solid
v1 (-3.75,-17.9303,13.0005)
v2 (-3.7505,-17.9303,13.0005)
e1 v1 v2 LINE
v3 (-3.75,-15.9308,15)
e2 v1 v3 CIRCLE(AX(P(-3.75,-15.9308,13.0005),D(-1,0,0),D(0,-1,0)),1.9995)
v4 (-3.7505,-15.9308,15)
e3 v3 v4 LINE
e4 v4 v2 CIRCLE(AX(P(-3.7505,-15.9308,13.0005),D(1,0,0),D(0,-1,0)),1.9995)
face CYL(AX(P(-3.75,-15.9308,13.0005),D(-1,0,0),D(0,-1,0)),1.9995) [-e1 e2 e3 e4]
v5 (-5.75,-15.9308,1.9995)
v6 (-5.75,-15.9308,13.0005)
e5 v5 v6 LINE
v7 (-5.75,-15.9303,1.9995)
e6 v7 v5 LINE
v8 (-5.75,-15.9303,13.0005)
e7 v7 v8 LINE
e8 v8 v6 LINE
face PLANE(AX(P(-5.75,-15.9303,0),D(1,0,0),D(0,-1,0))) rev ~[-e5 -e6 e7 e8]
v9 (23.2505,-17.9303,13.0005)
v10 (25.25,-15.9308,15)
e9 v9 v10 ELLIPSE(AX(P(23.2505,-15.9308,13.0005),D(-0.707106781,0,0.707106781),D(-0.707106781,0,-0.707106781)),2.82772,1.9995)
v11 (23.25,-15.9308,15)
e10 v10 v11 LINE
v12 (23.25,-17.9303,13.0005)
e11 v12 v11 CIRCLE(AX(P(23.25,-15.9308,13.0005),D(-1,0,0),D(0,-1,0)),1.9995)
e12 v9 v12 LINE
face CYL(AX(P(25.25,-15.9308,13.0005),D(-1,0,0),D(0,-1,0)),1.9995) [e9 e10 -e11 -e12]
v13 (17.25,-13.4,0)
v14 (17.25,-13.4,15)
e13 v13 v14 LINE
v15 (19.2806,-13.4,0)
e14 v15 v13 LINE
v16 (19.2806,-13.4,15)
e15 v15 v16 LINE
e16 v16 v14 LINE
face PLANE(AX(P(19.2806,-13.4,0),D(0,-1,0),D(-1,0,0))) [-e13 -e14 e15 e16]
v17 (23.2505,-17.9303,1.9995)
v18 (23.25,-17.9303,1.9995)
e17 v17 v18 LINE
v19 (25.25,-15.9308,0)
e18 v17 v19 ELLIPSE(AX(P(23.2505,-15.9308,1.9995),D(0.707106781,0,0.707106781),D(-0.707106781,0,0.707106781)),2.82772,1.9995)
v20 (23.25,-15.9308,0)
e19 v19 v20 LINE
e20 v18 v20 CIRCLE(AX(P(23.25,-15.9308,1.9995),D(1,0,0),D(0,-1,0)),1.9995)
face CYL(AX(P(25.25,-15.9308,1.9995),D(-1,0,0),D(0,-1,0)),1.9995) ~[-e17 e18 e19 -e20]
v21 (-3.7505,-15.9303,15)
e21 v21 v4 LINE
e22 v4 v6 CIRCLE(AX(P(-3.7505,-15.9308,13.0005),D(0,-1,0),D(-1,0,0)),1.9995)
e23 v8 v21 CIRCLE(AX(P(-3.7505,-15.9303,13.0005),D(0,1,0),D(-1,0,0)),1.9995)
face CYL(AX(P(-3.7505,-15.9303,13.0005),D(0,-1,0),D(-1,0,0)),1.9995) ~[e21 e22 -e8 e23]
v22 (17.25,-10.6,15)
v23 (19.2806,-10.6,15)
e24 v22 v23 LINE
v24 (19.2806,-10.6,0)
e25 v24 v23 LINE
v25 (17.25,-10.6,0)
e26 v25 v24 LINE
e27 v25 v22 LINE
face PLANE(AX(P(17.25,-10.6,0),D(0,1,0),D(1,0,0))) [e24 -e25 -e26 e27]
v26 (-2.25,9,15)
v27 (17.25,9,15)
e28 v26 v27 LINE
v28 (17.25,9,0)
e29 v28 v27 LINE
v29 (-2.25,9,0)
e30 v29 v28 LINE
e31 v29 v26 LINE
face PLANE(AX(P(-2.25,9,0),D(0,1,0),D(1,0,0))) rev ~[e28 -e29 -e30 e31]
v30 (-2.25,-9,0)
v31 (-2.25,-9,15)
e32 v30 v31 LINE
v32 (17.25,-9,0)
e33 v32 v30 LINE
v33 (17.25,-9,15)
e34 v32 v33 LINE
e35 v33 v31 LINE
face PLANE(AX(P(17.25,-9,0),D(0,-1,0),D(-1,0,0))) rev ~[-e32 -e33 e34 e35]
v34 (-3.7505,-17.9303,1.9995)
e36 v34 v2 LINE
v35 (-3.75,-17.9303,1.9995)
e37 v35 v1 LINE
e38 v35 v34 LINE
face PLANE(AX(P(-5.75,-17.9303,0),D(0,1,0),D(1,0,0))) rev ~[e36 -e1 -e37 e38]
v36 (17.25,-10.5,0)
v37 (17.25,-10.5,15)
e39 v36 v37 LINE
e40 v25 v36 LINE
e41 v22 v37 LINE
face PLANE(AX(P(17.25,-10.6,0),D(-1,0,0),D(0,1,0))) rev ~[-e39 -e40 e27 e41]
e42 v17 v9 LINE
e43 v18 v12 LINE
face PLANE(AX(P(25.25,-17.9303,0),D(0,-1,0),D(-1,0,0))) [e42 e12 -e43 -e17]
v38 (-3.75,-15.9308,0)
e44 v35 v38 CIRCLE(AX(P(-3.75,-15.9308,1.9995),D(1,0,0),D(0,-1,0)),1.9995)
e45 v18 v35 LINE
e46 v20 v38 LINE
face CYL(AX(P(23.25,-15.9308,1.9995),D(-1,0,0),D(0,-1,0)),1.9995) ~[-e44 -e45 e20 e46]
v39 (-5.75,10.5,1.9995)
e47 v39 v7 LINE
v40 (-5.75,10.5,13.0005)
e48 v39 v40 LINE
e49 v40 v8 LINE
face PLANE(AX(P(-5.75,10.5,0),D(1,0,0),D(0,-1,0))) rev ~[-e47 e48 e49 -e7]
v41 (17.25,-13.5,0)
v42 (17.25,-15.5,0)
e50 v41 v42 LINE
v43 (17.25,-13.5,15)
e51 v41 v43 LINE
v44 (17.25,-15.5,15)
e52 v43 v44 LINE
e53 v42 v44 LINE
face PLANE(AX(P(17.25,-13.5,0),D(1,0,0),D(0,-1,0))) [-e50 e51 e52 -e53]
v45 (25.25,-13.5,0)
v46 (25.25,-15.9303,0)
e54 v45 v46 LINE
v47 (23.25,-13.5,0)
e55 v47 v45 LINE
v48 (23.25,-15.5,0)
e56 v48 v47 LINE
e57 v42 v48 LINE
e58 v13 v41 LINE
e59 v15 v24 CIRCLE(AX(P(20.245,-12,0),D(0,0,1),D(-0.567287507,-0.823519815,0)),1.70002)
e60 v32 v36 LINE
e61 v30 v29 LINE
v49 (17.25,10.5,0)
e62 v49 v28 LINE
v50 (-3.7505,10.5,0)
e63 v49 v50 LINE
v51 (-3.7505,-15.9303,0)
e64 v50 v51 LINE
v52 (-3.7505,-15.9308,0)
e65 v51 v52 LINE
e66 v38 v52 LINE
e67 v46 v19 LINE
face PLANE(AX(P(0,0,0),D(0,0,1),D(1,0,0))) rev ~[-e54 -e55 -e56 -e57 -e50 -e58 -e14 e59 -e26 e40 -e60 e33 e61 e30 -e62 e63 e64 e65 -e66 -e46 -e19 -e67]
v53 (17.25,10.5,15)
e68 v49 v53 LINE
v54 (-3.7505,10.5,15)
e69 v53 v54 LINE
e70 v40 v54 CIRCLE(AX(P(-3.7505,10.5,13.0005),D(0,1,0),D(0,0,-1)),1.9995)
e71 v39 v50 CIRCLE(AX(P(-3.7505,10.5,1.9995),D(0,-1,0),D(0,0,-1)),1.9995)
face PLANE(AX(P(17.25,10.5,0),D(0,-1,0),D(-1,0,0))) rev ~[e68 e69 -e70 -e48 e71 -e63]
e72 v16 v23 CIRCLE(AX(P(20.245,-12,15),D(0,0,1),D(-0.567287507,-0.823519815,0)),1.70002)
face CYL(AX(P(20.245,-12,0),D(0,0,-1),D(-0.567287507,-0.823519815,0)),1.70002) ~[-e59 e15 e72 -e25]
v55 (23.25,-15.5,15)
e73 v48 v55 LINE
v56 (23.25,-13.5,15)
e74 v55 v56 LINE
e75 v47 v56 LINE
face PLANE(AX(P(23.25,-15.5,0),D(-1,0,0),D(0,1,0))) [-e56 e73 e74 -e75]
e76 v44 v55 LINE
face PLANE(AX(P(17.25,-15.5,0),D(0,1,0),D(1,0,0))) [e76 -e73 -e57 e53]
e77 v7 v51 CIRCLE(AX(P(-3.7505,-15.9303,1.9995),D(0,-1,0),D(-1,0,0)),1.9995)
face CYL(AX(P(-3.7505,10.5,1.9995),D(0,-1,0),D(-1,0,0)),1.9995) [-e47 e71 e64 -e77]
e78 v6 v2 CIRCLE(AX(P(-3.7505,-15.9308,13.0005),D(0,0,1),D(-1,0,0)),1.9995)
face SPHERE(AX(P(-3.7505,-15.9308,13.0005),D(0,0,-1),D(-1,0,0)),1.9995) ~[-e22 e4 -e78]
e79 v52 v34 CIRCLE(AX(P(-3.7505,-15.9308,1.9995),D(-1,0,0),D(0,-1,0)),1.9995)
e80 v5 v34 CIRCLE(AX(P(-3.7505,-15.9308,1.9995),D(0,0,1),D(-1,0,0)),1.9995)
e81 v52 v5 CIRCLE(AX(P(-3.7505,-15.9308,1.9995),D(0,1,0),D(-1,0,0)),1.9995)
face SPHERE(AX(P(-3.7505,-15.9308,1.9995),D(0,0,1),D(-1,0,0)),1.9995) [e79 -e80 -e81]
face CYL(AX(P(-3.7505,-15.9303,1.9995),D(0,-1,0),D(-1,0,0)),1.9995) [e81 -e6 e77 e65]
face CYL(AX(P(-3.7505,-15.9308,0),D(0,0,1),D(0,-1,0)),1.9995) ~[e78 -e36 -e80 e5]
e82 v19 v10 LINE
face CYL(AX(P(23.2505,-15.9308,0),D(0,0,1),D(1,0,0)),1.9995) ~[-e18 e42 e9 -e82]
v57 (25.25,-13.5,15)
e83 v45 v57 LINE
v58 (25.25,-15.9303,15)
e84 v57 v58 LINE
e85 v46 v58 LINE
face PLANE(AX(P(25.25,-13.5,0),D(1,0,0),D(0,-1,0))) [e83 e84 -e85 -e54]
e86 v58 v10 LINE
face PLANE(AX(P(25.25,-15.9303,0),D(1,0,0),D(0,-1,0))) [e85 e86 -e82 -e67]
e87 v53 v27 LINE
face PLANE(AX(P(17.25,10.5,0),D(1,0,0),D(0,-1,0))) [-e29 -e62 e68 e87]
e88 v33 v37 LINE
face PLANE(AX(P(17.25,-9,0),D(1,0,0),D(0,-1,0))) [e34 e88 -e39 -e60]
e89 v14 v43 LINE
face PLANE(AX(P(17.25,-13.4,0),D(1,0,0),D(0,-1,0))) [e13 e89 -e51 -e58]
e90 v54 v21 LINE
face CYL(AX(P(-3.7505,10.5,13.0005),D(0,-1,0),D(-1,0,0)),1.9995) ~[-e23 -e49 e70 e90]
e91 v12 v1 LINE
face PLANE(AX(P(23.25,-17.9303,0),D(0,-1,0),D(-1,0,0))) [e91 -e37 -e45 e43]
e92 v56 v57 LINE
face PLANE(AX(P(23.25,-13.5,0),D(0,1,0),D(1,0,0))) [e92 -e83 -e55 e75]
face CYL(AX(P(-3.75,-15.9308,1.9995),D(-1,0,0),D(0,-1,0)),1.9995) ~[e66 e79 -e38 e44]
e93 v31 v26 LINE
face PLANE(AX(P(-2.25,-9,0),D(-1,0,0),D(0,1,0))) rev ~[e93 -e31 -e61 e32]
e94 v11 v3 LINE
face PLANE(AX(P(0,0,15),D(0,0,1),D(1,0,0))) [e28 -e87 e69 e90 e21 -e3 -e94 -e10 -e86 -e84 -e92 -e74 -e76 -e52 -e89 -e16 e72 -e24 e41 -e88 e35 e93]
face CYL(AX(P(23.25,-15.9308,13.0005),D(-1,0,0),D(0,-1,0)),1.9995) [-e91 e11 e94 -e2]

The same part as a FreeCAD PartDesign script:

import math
import FreeCAD as App
import Part
import Sketcher

V = App.Vector
Q = App.Units.Quantity


def edges_at(feature, points):
    """Names of the edges that pass closest to the given points."""
    edges = feature.Shape.Edges
    near = lambda p: min(range(len(edges)), key=lambda i: edges[i].distToShape(Part.Vertex(*p))[0])
    return sorted({f"Edge{near(p) + 1}" for p in points})

doc = App.newDocument("Part")
body = doc.addObject("PartDesign::Body", "Body")

# Sketch on XY plane
sketch1 = doc.addObject("Sketcher::SketchObject", "Sketch")
body.addObject(sketch1)
sketch1.AttachmentSupport = (doc.XY_Plane, [""])
sketch1.MapMode = "FlatFace"
sketch1.addGeometry(Part.LineSegment(V(17.2, -15.5, 0), V(17.2, -13.4, 0)), False)
sketch1.addGeometry(Part.LineSegment(V(17.2, -13.4, 0), V(19.3, -13.4, 0)), False)
sketch1.addGeometry(Part.ArcOfCircle(Part.Circle(V(20.2, -12, 0), V(0, 0, 1), 1.7), math.radians(-125), math.radians(125)), False)
sketch1.addGeometry(Part.LineSegment(V(19.3, -10.6, 0), V(17.2, -10.6, 0)), False)
sketch1.addGeometry(Part.LineSegment(V(17.2, -10.6, 0), V(17.2, -9, 0)), False)
sketch1.addGeometry(Part.LineSegment(V(17.2, -9, 0), V(-2.2, -9, 0)), False)
sketch1.addGeometry(Part.LineSegment(V(-2.2, -9, 0), V(-2.2, 9, 0)), False)
sketch1.addGeometry(Part.LineSegment(V(-2.2, 9, 0), V(17.2, 9, 0)), False)
sketch1.addGeometry(Part.LineSegment(V(17.2, 9, 0), V(17.2, 10.5, 0)), False)
sketch1.addGeometry(Part.LineSegment(V(17.2, 10.5, 0), V(-5.8, 10.5, 0)), False)
sketch1.addGeometry(Part.LineSegment(V(-5.8, 10.5, 0), V(-5.8, -17.9, 0)), False)
sketch1.addGeometry(Part.LineSegment(V(-5.8, -17.9, 0), V(25.2, -17.9, 0)), False)
sketch1.addGeometry(Part.LineSegment(V(25.2, -17.9, 0), V(25.2, -13.5, 0)), False)
sketch1.addGeometry(Part.LineSegment(V(25.2, -13.5, 0), V(23.2, -13.5, 0)), False)
sketch1.addGeometry(Part.LineSegment(V(23.2, -13.5, 0), V(23.2, -15.5, 0)), False)
sketch1.addGeometry(Part.LineSegment(V(23.2, -15.5, 0), V(17.2, -15.5, 0)), False)
sketch1.addConstraint(Sketcher.Constraint("Coincident", 0, 2, 1, 1))
sketch1.addConstraint(Sketcher.Constraint("Coincident", 1, 2, 2, 1))
sketch1.addConstraint(Sketcher.Constraint("Coincident", 2, 2, 3, 1))
sketch1.addConstraint(Sketcher.Constraint("Coincident", 3, 2, 4, 1))
sketch1.addConstraint(Sketcher.Constraint("Coincident", 4, 2, 5, 1))
sketch1.addConstraint(Sketcher.Constraint("Coincident", 5, 2, 6, 1))
sketch1.addConstraint(Sketcher.Constraint("Coincident", 6, 2, 7, 1))
sketch1.addConstraint(Sketcher.Constraint("Coincident", 7, 2, 8, 1))
sketch1.addConstraint(Sketcher.Constraint("Coincident", 8, 2, 9, 1))
sketch1.addConstraint(Sketcher.Constraint("Coincident", 9, 2, 10, 1))
sketch1.addConstraint(Sketcher.Constraint("Coincident", 10, 2, 11, 1))
sketch1.addConstraint(Sketcher.Constraint("Coincident", 11, 2, 12, 1))
sketch1.addConstraint(Sketcher.Constraint("Coincident", 12, 2, 13, 1))
sketch1.addConstraint(Sketcher.Constraint("Coincident", 13, 2, 14, 1))
sketch1.addConstraint(Sketcher.Constraint("Coincident", 14, 2, 15, 1))
sketch1.addConstraint(Sketcher.Constraint("Coincident", 15, 2, 0, 1))
sketch1.addConstraint(Sketcher.Constraint("Vertical", 0))
sketch1.addConstraint(Sketcher.Constraint("Horizontal", 1))
sketch1.addConstraint(Sketcher.Constraint("Horizontal", 3))
sketch1.addConstraint(Sketcher.Constraint("Vertical", 4))
sketch1.addConstraint(Sketcher.Constraint("Horizontal", 5))
sketch1.addConstraint(Sketcher.Constraint("Vertical", 6))
sketch1.addConstraint(Sketcher.Constraint("Horizontal", 7))
sketch1.addConstraint(Sketcher.Constraint("Vertical", 8))
sketch1.addConstraint(Sketcher.Constraint("Horizontal", 9))
sketch1.addConstraint(Sketcher.Constraint("Vertical", 10))
sketch1.addConstraint(Sketcher.Constraint("Horizontal", 11))
sketch1.addConstraint(Sketcher.Constraint("Vertical", 12))
sketch1.addConstraint(Sketcher.Constraint("Horizontal", 13))
sketch1.addConstraint(Sketcher.Constraint("Vertical", 14))
sketch1.addConstraint(Sketcher.Constraint("Horizontal", 15))
sketch1.addConstraint(Sketcher.Constraint("Symmetric", 4, 2, 7, 2, -1))
sketch1.addConstraint(Sketcher.Constraint("Vertical", 1, 2, 2, 2))
sketch1.addConstraint(Sketcher.Constraint("Vertical", 0, 2, 3, 2))
sketch1.addConstraint(Sketcher.Constraint("Equal", 13, 14))
sketch1.addConstraint(Sketcher.Constraint("DistanceX", 9, 2, 9, 1, Q("23 mm")))
sketch1.addConstraint(Sketcher.Constraint("Radius", 2, Q("1.7 mm")))
sketch1.addConstraint(Sketcher.Constraint("DistanceY", 12, 2, 1, 2, Q("0.1 mm")))
sketch1.addConstraint(Sketcher.Constraint("DistanceX", 11, 1, 11, 2, Q("31 mm")))
sketch1.addConstraint(Sketcher.Constraint("DistanceX", 13, 2, 13, 1, Q("2 mm")))
sketch1.addConstraint(Sketcher.Constraint("DistanceY", 6, 1, 6, 2, Q("18 mm")))
sketch1.addConstraint(Sketcher.Constraint("DistanceX", 5, 2, 5, 1, Q("19.5 mm")))
sketch1.addConstraint(Sketcher.Constraint("DistanceY", 4, 1, 4, 2, Q("1.6 mm")))
sketch1.addConstraint(Sketcher.Constraint("DistanceY", 8, 1, 8, 2, Q("1.5 mm")))
sketch1.addConstraint(Sketcher.Constraint("DistanceY", 2, 3, -1, 1, Q("12 mm")))
sketch1.addConstraint(Sketcher.Constraint("DistanceX", -1, 1, 0, 2, Q("17.25 mm")))
sketch1.addConstraint(Sketcher.Constraint("DistanceX", 1, 1, 1, 2, Q("2.0306 mm")))
sketch1.addConstraint(Sketcher.Constraint("DistanceY", 10, 2, 10, 1, Q("28.4303 mm")))
pad1 = doc.addObject("PartDesign::Pad", "Pad")
body.addObject(pad1)
pad1.Profile = sketch1
pad1.Length = 15
doc.recompute()

fillet = doc.addObject("PartDesign::Fillet", "Fillet")
body.addObject(fillet)
fillet.Base = (pad1, edges_at(pad1, [
    (-5.75, -17.93, 7.5),
    (-5.75, -3.715, 0),
    (-5.75, -3.715, 15),
    (9.75, -17.93, 0),
    (9.75, -17.93, 15),
    (25.25, -17.93, 7.5),
]))
fillet.Radius = 2

doc.recompute()
